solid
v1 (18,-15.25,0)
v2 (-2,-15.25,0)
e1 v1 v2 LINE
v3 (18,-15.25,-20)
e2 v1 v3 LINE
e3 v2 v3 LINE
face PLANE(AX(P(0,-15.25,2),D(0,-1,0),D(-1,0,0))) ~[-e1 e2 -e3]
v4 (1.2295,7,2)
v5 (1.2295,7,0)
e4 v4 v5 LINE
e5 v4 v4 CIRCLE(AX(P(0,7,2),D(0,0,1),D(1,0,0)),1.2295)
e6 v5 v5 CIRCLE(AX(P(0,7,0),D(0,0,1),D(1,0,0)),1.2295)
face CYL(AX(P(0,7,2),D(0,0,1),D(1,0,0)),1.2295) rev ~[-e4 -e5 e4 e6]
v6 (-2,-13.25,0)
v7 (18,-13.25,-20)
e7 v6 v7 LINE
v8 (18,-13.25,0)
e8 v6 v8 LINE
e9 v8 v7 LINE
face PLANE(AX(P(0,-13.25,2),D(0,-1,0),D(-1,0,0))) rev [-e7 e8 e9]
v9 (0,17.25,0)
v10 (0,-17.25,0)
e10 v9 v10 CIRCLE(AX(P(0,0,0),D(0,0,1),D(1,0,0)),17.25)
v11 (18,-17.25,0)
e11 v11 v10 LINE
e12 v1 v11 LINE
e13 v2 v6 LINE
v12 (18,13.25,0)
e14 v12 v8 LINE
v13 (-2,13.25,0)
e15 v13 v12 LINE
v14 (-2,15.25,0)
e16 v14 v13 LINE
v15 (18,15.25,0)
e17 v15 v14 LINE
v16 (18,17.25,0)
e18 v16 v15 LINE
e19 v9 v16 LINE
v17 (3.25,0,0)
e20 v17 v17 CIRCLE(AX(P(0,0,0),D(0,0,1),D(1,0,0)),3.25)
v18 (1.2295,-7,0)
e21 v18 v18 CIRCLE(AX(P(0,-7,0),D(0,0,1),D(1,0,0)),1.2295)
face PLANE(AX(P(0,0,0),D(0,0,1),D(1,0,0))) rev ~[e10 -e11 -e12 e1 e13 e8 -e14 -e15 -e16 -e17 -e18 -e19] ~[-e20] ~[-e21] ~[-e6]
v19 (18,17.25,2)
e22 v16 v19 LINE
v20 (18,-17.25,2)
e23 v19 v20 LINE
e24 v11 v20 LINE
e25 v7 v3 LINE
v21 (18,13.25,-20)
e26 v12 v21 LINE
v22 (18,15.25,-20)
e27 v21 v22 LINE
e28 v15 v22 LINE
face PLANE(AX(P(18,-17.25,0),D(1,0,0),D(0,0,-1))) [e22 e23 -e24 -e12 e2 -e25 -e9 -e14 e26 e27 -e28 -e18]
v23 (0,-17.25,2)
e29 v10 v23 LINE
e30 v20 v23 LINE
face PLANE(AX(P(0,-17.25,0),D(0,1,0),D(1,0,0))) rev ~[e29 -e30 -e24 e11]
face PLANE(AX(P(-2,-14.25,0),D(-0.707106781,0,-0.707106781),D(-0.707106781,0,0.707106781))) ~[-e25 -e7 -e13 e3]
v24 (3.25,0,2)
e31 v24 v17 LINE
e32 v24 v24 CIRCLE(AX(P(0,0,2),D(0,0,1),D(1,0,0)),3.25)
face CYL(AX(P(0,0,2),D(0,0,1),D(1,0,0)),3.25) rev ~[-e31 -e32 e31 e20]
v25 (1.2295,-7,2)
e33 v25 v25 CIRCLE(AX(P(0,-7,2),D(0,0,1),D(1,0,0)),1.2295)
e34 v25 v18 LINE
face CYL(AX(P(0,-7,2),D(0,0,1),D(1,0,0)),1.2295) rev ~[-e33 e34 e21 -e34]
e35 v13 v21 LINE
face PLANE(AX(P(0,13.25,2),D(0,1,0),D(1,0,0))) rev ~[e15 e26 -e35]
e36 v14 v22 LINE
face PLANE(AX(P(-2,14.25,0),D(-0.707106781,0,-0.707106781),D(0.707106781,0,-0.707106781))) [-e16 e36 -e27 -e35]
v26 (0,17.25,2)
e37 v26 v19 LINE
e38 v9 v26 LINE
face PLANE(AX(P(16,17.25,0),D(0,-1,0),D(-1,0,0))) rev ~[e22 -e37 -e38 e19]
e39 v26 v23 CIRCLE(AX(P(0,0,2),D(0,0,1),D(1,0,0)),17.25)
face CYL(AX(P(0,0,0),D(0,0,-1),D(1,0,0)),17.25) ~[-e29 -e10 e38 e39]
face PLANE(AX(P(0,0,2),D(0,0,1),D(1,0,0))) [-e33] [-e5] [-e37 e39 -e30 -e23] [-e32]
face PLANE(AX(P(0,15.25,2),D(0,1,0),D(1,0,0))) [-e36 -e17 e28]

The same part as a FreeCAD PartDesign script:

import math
import FreeCAD as App
import Part
import Sketcher
from FreeCAD import Vector

doc = App.newDocument("Part")
body = doc.addObject("PartDesign::Body", "Body")

sketch1 = doc.addObject("Sketcher::SketchObject", "Sketch")
body.addObject(sketch1)
sketch1.AttachmentSupport = (doc.XY_Plane, [""])
sketch1.MapMode = "FlatFace"
sketch1.addGeometry(Part.ArcOfCircle(Part.Circle(Vector(0, 0, 0), Vector(0, 0, 1), 17), math.radians(90), math.radians(270)), False)
sketch1.addGeometry(Part.LineSegment(Vector(0, -17, 0), Vector(16, -17, 0)), False)
sketch1.addGeometry(Part.LineSegment(Vector(16, -17, 0), Vector(16, -6, 0)), False)
sketch1.addGeometry(Part.ArcOfCircle(Part.Circle(Vector(0, 0, 0), Vector(0, 0, 1), 17), math.radians(-22), math.radians(22)), False)
sketch1.addGeometry(Part.LineSegment(Vector(16, 6, 0), Vector(16, 17, 0)), False)
sketch1.addGeometry(Part.LineSegment(Vector(16, 17, 0), Vector(0, 17, 0)), False)
sketch1.addConstraint(Sketcher.Constraint("Tangent", 0, 2, 1, 1))
sketch1.addConstraint(Sketcher.Constraint("Coincident", 1, 2, 2, 1))
sketch1.addConstraint(Sketcher.Constraint("Coincident", 2, 2, 3, 1))
sketch1.addConstraint(Sketcher.Constraint("Coincident", 3, 2, 4, 1))
sketch1.addConstraint(Sketcher.Constraint("Coincident", 4, 2, 5, 1))
sketch1.addConstraint(Sketcher.Constraint("Tangent", 5, 2, 0, 1))
sketch1.addConstraint(Sketcher.Constraint("Horizontal", 1))
sketch1.addConstraint(Sketcher.Constraint("Vertical", 2))
sketch1.addConstraint(Sketcher.Constraint("Vertical", 4))
sketch1.addConstraint(Sketcher.Constraint("Horizontal", 5))
sketch1.addConstraint(Sketcher.Constraint("Coincident", 0, 3, -1, 1))
sketch1.addConstraint(Sketcher.Constraint("Coincident", 3, 3, -1, 1))
sketch1.addConstraint(Sketcher.Constraint("Equal", 0, 3))
sketch1.addConstraint(Sketcher.Constraint("Vertical", 2, 2, 3, 2))
sketch1.addConstraint(Sketcher.Constraint("DistanceX", 1, 1, 1, 2, 16.0))
sketch1.addConstraint(Sketcher.Constraint("Radius", 0, 17.25))
pad1 = doc.addObject("PartDesign::Pad", "Pad")
body.addObject(pad1)
pad1.Profile = sketch1
pad1.Length = 2

sketch2 = doc.addObject("Sketcher::SketchObject", "Sketch001")
body.addObject(sketch2)
sketch2.AttachmentSupport = (doc.XY_Plane, [""])
sketch2.MapMode = "FlatFace"
sketch2.AttachmentOffset = App.Placement(Vector(0, 0, 2), App.Rotation())
sketch2.addGeometry(Part.Circle(Vector(0, 7, 0), Vector(0, 0, 1), 1.2), False)
sketch2.addGeometry(Part.Circle(Vector(0, -7, 0), Vector(0, 0, 1), 1.2), False)
sketch2.addGeometry(Part.Circle(Vector(0, 0, 0), Vector(0, 0, 1), 3.2), False)
sketch2.addConstraint(Sketcher.Constraint("Coincident", 2, 3, -1, 1))
sketch2.addConstraint(Sketcher.Constraint("Equal", 0, 1))
sketch2.addConstraint(Sketcher.Constraint("Symmetric", 0, 3, 1, 3, -1, 1))
sketch2.addConstraint(Sketcher.Constraint("PointOnObject", 0, 3, -2))
sketch2.addConstraint(Sketcher.Constraint("Diameter", 2, 6.5))
sketch2.addConstraint(Sketcher.Constraint("Diameter", 0, 2.459))
sketch2.addConstraint(Sketcher.Constraint("DistanceY", -1, 1, 0, 3, 7.0))
pocket1 = doc.addObject("PartDesign::Pocket", "Pocket")
body.addObject(pocket1)
pocket1.Profile = sketch2
pocket1.Type = "UpToFirst"

sketch3 = doc.addObject("Sketcher::SketchObject", "Sketch002")
body.addObject(sketch3)
sketch3.AttachmentSupport = (doc.YZ_Plane, [""])
sketch3.MapMode = "FlatFace"
sketch3.AttachmentOffset = App.Placement(Vector(0, 0, 16), App.Rotation())
sketch3.addGeometry(Part.LineSegment(Vector(-17.2, 2, 0), Vector(-17.2, 0, 0)), False)
sketch3.addGeometry(Part.LineSegment(Vector(-17.2, 0, 0), Vector(-6.4, 0, 0)), False)
sketch3.addGeometry(Part.LineSegment(Vector(-6.4, 0, 0), Vector(-6.4, 2, 0)), False)
sketch3.addGeometry(Part.LineSegment(Vector(-6.4, 2, 0), Vector(-17.2, 2, 0)), False)
sketch3.addGeometry(Part.LineSegment(Vector(17.2, 2, 0), Vector(6.4, 2, 0)), False)
sketch3.addGeometry(Part.LineSegment(Vector(6.4, 2, 0), Vector(6.4, 0, 0)), False)
sketch3.addGeometry(Part.LineSegment(Vector(6.4, 0, 0), Vector(17.2, 0, 0)), False)
sketch3.addGeometry(Part.LineSegment(Vector(17.2, 0, 0), Vector(17.2, 2, 0)), False)
sketch3.addConstraint(Sketcher.Constraint("Coincident", 0, 2, 1, 1))
sketch3.addConstraint(Sketcher.Constraint("Coincident", 1, 2, 2, 1))
sketch3.addConstraint(Sketcher.Constraint("Coincident", 2, 2, 3, 1))
sketch3.addConstraint(Sketcher.Constraint("Coincident", 3, 2, 0, 1))
sketch3.addConstraint(Sketcher.Constraint("Coincident", 4, 2, 5, 1))
sketch3.addConstraint(Sketcher.Constraint("Coincident", 5, 2, 6, 1))
sketch3.addConstraint(Sketcher.Constraint("Coincident", 6, 2, 7, 1))
sketch3.addConstraint(Sketcher.Constraint("Coincident", 7, 2, 4, 1))
sketch3.addConstraint(Sketcher.Constraint("Vertical", 0))
sketch3.addConstraint(Sketcher.Constraint("Horizontal", 1))
sketch3.addConstraint(Sketcher.Constraint("Vertical", 2))
sketch3.addConstraint(Sketcher.Constraint("Horizontal", 3))
sketch3.addConstraint(Sketcher.Constraint("Horizontal", 4))
sketch3.addConstraint(Sketcher.Constraint("Vertical", 5))
sketch3.addConstraint(Sketcher.Constraint("Horizontal", 6))
sketch3.addConstraint(Sketcher.Constraint("Vertical", 7))
sketch3.addConstraint(Sketcher.Constraint("Symmetric", 1, 2, 5, 2, -1, 1))
sketch3.addConstraint(Sketcher.Constraint("Symmetric", 0, 2, 6, 2, -2))
sketch3.addConstraint(Sketcher.Constraint("Horizontal", 3, 2, 4, 2))
sketch3.addConstraint(Sketcher.Constraint("DistanceY", 0, 2, 0, 1, 2.0))
sketch3.addConstraint(Sketcher.Constraint("DistanceX", 0, 2, 6, 2, 34.5))
sketch3.addConstraint(Sketcher.Constraint("DistanceX", 1, 1, 1, 2, 10.803))
pad2 = doc.addObject("PartDesign::Pad", "Pad001")
body.addObject(pad2)
pad2.Profile = sketch3
pad2.Length = 2

sketch4 = doc.addObject("Sketcher::SketchObject", "Sketch003")
body.addObject(sketch4)
sketch4.AttachmentSupport = (doc.XY_Plane, [""])
sketch4.MapMode = "FlatFace"
sketch4.AttachmentOffset = App.Placement(Vector(0, 0, 2), App.Rotation())
sketch4.addGeometry(Part.LineSegment(Vector(18, 17, 0), Vector(9, 17, 0)), False)
sketch4.addGeometry(Part.LineSegment(Vector(9, 17, 0), Vector(9, -17, 0)), False)
sketch4.addGeometry(Part.LineSegment(Vector(9, -17, 0), Vector(18, -17, 0)), False)
sketch4.addGeometry(Part.LineSegment(Vector(18, -17, 0), Vector(18, 17, 0)), False)
sketch4.addConstraint(Sketcher.Constraint("Coincident", 0, 2, 1, 1))
sketch4.addConstraint(Sketcher.Constraint("Coincident", 1, 2, 2, 1))
sketch4.addConstraint(Sketcher.Constraint("Coincident", 2, 2, 3, 1))
sketch4.addConstraint(Sketcher.Constraint("Coincident", 3, 2, 0, 1))
sketch4.addConstraint(Sketcher.Constraint("Horizontal", 0))
sketch4.addConstraint(Sketcher.Constraint("Vertical", 1))
sketch4.addConstraint(Sketcher.Constraint("Horizontal", 2))
sketch4.addConstraint(Sketcher.Constraint("Vertical", 3))
sketch4.addConstraint(Sketcher.Constraint("DistanceX", 0, 2, 0, 1, 9.0))
sketch4.addConstraint(Sketcher.Constraint("DistanceY", 1, 2, 1, 1, 34.5))
sketch4.addConstraint(Sketcher.Constraint("DistanceX", -1, 1, 0, 2, 9.0))
sketch4.addConstraint(Sketcher.Constraint("DistanceY", -1, 1, 0, 2, 17.25))
pad3 = doc.addObject("PartDesign::Pad", "Pad002")
body.addObject(pad3)
pad3.Profile = sketch4
pad3.Length = 2
pad3.Reversed = True

sketch5 = doc.addObject("Sketcher::SketchObject", "Sketch004")
body.addObject(sketch5)
sketch5.AttachmentSupport = (doc.XZ_Plane, [""])
sketch5.MapMode = "FlatFace"
sketch5.AttachmentOffset = App.Placement(Vector(0, 0, -14.25), App.Rotation())
sketch5.addGeometry(Part.LineSegment(Vector(-2, 0, 0), Vector(18, 0, 0)), False)
sketch5.addGeometry(Part.LineSegment(Vector(18, 0, 0), Vector(18, -20, 0)), False)
sketch5.addGeometry(Part.LineSegment(Vector(18, -20, 0), Vector(-2, 0, 0)), False)
sketch5.addConstraint(Sketcher.Constraint("Coincident", 0, 2, 1, 1))
sketch5.addConstraint(Sketcher.Constraint("Coincident", 1, 2, 2, 1))
sketch5.addConstraint(Sketcher.Constraint("Coincident", 2, 2, 0, 1))
sketch5.addConstraint(Sketcher.Constraint("Horizontal", 0))
sketch5.addConstraint(Sketcher.Constraint("Vertical", 1))
sketch5.addConstraint(Sketcher.Constraint("PointOnObject", 0, 2, -1))
sketch5.addConstraint(Sketcher.Constraint("Equal", 0, 1))
sketch5.addConstraint(Sketcher.Constraint("DistanceX", 0, 1, 0, 2, 20.0))
sketch5.addConstraint(Sketcher.Constraint("DistanceX", -1, 1, 0, 2, 18.0))
pad4 = doc.addObject("PartDesign::Pad", "Pad003")
body.addObject(pad4)
pad4.Profile = sketch5
pad4.Length = 2
pad4.Midplane = True
doc.recompute()

mirrored = doc.addObject("PartDesign::Mirrored", "Mirrored")
body.addObject(mirrored)
mirrored.Originals = [pad4]
mirrored.MirrorPlane = (doc.XZ_Plane, [""])
body.Tip = mirrored

doc.recompute()
